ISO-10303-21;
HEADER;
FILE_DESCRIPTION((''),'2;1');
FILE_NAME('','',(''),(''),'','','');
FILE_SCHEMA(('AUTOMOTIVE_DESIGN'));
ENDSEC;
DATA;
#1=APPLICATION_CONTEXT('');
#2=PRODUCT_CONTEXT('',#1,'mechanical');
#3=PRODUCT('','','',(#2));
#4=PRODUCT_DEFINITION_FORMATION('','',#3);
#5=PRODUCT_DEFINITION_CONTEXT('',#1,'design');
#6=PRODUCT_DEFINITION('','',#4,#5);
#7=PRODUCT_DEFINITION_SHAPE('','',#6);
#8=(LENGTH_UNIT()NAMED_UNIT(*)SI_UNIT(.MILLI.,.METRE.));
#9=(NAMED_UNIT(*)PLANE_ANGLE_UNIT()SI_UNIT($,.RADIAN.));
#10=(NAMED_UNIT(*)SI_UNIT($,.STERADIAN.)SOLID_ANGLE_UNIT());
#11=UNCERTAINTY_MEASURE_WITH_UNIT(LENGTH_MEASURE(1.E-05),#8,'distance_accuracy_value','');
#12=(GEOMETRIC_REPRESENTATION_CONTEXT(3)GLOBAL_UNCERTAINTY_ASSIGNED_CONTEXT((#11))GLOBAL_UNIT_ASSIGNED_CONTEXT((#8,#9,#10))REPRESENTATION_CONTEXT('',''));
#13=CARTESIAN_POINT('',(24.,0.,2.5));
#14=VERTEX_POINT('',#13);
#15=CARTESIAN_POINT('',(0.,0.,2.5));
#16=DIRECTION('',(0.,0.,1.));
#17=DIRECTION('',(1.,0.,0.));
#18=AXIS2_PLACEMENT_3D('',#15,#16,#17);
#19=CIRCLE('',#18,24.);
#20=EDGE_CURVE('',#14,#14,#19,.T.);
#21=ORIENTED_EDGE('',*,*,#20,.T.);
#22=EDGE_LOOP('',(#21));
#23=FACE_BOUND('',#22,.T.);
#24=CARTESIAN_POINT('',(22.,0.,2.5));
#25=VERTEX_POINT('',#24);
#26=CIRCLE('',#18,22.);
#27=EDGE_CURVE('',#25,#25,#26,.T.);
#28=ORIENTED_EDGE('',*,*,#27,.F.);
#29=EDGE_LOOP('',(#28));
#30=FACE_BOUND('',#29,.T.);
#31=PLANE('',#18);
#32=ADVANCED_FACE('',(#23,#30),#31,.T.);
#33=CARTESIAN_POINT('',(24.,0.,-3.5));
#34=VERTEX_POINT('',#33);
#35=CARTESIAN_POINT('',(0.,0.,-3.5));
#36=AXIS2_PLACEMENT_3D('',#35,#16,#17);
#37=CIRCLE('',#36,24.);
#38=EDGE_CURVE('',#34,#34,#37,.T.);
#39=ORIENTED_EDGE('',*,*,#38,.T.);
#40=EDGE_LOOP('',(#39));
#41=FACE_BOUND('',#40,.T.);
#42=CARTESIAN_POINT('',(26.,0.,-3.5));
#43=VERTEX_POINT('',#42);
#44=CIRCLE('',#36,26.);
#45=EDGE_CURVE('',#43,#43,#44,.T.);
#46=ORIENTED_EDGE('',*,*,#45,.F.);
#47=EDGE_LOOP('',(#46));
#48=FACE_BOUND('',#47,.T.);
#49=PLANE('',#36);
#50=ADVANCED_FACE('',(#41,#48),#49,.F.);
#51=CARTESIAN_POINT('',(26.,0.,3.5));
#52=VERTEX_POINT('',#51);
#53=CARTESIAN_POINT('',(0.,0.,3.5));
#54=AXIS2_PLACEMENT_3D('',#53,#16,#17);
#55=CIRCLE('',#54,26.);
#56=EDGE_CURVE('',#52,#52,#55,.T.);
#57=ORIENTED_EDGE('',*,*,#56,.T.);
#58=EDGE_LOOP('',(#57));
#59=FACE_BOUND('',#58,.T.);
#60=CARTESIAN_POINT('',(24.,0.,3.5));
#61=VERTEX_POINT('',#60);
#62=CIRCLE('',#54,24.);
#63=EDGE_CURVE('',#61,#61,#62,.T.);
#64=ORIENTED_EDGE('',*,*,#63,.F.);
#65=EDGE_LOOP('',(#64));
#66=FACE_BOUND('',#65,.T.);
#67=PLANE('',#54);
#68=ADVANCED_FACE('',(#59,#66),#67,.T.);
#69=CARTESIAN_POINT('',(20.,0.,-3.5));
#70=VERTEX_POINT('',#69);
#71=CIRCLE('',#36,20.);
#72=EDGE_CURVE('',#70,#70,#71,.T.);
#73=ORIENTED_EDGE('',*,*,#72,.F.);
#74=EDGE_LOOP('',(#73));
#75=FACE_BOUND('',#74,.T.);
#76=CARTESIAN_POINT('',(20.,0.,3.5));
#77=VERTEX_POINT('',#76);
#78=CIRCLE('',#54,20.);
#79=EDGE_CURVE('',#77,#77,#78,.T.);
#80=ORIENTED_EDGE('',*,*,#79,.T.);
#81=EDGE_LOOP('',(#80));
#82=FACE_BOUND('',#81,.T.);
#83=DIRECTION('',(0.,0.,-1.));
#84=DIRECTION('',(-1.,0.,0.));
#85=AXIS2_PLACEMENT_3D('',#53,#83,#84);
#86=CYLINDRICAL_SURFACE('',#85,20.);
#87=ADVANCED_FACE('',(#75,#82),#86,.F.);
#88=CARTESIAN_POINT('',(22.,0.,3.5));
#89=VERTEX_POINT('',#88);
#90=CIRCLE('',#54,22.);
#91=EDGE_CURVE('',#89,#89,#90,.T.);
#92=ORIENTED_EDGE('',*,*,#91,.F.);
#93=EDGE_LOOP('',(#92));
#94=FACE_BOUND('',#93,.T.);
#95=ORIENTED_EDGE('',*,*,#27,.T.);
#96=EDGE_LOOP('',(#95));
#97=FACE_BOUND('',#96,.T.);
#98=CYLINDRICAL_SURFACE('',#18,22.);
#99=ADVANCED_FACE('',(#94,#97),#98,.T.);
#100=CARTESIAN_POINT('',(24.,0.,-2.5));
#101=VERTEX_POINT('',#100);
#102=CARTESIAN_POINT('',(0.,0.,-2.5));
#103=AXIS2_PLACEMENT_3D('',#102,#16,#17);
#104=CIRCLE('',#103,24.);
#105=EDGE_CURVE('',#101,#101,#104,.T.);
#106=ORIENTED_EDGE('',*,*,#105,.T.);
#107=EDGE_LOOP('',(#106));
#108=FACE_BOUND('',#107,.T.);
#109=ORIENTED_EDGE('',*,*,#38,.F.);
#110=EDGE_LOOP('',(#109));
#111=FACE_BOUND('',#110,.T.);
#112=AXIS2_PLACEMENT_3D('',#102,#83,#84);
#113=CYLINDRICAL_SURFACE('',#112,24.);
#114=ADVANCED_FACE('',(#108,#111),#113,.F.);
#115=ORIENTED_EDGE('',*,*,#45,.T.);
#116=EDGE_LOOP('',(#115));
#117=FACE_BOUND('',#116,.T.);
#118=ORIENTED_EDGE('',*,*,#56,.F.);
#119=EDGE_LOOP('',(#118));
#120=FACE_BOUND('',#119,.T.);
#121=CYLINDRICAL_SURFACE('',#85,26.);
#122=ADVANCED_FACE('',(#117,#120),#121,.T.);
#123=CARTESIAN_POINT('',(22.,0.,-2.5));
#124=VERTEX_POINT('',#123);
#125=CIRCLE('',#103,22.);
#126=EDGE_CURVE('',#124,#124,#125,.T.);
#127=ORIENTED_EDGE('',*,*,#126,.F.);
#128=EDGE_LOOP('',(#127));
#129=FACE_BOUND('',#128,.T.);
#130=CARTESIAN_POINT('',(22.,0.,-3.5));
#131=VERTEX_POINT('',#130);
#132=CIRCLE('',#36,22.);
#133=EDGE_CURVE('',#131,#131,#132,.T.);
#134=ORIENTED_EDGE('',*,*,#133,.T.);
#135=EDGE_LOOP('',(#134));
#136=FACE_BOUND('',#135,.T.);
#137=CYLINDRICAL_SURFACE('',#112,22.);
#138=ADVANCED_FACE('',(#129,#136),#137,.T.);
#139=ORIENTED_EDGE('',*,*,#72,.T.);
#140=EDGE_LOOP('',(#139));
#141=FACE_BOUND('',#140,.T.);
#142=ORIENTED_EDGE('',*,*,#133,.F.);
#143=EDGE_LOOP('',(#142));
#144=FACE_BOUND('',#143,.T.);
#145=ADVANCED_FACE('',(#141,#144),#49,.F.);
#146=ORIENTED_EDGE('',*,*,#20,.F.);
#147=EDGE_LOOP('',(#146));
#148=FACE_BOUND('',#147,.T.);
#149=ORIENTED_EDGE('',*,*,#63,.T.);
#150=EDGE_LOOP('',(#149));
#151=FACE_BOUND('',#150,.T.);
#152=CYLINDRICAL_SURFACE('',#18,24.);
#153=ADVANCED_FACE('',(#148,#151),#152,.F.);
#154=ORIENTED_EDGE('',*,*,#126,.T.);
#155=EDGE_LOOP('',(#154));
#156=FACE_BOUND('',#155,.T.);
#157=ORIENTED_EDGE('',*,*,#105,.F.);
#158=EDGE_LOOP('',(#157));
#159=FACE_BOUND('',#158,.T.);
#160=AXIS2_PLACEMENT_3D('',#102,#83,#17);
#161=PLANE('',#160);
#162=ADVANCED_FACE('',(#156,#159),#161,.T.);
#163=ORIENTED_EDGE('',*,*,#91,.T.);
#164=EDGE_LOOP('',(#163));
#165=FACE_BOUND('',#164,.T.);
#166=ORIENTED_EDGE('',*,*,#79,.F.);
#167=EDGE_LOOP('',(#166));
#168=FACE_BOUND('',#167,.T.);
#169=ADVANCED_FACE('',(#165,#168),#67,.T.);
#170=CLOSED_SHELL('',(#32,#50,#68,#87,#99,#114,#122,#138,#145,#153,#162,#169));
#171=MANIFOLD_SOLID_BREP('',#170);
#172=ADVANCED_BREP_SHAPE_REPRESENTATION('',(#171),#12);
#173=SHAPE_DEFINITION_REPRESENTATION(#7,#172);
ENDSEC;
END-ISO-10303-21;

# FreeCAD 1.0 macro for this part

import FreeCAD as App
import Part
import Sketcher
from FreeCAD import Vector
Q = App.Units.Quantity

doc = App.newDocument("Part")
body = doc.addObject("PartDesign::Body", "Body")

# Sketch on XY plane
sketch1 = body.newObject("Sketcher::SketchObject", "Sketch")
sketch1.AttachmentSupport = (doc.getObject("XY_Plane"), [""])
sketch1.MapMode = "FlatFace"
sketch1.addGeometry([
    Part.Circle(Vector(0, 0, 0), Vector(0, 0, 1), 26),
    Part.Circle(Vector(0, 0, 0), Vector(0, 0, 1), 20),
], False)
sketch1.addConstraint([
    Sketcher.Constraint("Coincident", 0, 3, -1, 1),
    Sketcher.Constraint("Coincident", 1, 3, -1, 1),
    Sketcher.Constraint("Diameter", 0, Q("52 mm")),
    Sketcher.Constraint("Diameter", 1, Q("40 mm")),
])
pad1 = body.newObject("PartDesign::Pad", "Pad")
pad1.Profile = sketch1
pad1.Type = "TwoLengths"
pad1.Length = 3.5
pad1.Length2 = 3.5

# Sketch on XY plane
sketch2 = body.newObject("Sketcher::SketchObject", "Sketch001")
sketch2.AttachmentSupport = (doc.getObject("XY_Plane"), [""])
sketch2.MapMode = "FlatFace"
sketch2.AttachmentOffset = App.Placement(Vector(0, 0, 3.5), App.Rotation())
sketch2.addGeometry([
    Part.Circle(Vector(0, 0, 0), Vector(0, 0, 1), 24),
    Part.Circle(Vector(0, 0, 0), Vector(0, 0, 1), 22),
], False)
sketch2.addConstraint([
    Sketcher.Constraint("Coincident", 0, 3, -1, 1),
    Sketcher.Constraint("Coincident", 1, 3, -1, 1),
    Sketcher.Constraint("Diameter", 0, Q("48 mm")),
    Sketcher.Constraint("Diameter", 1, Q("44 mm")),
])
pocket1 = body.newObject("PartDesign::Pocket", "Pocket")
pocket1.Profile = sketch2
pocket1.Length = 1
doc.recompute()

mirrored = body.newObject("PartDesign::Mirrored", "Mirrored")
mirrored.Originals = [pocket1]
mirrored.MirrorPlane = (doc.getObject("XY_Plane"), [""])
body.Tip = mirrored

doc.recompute()
